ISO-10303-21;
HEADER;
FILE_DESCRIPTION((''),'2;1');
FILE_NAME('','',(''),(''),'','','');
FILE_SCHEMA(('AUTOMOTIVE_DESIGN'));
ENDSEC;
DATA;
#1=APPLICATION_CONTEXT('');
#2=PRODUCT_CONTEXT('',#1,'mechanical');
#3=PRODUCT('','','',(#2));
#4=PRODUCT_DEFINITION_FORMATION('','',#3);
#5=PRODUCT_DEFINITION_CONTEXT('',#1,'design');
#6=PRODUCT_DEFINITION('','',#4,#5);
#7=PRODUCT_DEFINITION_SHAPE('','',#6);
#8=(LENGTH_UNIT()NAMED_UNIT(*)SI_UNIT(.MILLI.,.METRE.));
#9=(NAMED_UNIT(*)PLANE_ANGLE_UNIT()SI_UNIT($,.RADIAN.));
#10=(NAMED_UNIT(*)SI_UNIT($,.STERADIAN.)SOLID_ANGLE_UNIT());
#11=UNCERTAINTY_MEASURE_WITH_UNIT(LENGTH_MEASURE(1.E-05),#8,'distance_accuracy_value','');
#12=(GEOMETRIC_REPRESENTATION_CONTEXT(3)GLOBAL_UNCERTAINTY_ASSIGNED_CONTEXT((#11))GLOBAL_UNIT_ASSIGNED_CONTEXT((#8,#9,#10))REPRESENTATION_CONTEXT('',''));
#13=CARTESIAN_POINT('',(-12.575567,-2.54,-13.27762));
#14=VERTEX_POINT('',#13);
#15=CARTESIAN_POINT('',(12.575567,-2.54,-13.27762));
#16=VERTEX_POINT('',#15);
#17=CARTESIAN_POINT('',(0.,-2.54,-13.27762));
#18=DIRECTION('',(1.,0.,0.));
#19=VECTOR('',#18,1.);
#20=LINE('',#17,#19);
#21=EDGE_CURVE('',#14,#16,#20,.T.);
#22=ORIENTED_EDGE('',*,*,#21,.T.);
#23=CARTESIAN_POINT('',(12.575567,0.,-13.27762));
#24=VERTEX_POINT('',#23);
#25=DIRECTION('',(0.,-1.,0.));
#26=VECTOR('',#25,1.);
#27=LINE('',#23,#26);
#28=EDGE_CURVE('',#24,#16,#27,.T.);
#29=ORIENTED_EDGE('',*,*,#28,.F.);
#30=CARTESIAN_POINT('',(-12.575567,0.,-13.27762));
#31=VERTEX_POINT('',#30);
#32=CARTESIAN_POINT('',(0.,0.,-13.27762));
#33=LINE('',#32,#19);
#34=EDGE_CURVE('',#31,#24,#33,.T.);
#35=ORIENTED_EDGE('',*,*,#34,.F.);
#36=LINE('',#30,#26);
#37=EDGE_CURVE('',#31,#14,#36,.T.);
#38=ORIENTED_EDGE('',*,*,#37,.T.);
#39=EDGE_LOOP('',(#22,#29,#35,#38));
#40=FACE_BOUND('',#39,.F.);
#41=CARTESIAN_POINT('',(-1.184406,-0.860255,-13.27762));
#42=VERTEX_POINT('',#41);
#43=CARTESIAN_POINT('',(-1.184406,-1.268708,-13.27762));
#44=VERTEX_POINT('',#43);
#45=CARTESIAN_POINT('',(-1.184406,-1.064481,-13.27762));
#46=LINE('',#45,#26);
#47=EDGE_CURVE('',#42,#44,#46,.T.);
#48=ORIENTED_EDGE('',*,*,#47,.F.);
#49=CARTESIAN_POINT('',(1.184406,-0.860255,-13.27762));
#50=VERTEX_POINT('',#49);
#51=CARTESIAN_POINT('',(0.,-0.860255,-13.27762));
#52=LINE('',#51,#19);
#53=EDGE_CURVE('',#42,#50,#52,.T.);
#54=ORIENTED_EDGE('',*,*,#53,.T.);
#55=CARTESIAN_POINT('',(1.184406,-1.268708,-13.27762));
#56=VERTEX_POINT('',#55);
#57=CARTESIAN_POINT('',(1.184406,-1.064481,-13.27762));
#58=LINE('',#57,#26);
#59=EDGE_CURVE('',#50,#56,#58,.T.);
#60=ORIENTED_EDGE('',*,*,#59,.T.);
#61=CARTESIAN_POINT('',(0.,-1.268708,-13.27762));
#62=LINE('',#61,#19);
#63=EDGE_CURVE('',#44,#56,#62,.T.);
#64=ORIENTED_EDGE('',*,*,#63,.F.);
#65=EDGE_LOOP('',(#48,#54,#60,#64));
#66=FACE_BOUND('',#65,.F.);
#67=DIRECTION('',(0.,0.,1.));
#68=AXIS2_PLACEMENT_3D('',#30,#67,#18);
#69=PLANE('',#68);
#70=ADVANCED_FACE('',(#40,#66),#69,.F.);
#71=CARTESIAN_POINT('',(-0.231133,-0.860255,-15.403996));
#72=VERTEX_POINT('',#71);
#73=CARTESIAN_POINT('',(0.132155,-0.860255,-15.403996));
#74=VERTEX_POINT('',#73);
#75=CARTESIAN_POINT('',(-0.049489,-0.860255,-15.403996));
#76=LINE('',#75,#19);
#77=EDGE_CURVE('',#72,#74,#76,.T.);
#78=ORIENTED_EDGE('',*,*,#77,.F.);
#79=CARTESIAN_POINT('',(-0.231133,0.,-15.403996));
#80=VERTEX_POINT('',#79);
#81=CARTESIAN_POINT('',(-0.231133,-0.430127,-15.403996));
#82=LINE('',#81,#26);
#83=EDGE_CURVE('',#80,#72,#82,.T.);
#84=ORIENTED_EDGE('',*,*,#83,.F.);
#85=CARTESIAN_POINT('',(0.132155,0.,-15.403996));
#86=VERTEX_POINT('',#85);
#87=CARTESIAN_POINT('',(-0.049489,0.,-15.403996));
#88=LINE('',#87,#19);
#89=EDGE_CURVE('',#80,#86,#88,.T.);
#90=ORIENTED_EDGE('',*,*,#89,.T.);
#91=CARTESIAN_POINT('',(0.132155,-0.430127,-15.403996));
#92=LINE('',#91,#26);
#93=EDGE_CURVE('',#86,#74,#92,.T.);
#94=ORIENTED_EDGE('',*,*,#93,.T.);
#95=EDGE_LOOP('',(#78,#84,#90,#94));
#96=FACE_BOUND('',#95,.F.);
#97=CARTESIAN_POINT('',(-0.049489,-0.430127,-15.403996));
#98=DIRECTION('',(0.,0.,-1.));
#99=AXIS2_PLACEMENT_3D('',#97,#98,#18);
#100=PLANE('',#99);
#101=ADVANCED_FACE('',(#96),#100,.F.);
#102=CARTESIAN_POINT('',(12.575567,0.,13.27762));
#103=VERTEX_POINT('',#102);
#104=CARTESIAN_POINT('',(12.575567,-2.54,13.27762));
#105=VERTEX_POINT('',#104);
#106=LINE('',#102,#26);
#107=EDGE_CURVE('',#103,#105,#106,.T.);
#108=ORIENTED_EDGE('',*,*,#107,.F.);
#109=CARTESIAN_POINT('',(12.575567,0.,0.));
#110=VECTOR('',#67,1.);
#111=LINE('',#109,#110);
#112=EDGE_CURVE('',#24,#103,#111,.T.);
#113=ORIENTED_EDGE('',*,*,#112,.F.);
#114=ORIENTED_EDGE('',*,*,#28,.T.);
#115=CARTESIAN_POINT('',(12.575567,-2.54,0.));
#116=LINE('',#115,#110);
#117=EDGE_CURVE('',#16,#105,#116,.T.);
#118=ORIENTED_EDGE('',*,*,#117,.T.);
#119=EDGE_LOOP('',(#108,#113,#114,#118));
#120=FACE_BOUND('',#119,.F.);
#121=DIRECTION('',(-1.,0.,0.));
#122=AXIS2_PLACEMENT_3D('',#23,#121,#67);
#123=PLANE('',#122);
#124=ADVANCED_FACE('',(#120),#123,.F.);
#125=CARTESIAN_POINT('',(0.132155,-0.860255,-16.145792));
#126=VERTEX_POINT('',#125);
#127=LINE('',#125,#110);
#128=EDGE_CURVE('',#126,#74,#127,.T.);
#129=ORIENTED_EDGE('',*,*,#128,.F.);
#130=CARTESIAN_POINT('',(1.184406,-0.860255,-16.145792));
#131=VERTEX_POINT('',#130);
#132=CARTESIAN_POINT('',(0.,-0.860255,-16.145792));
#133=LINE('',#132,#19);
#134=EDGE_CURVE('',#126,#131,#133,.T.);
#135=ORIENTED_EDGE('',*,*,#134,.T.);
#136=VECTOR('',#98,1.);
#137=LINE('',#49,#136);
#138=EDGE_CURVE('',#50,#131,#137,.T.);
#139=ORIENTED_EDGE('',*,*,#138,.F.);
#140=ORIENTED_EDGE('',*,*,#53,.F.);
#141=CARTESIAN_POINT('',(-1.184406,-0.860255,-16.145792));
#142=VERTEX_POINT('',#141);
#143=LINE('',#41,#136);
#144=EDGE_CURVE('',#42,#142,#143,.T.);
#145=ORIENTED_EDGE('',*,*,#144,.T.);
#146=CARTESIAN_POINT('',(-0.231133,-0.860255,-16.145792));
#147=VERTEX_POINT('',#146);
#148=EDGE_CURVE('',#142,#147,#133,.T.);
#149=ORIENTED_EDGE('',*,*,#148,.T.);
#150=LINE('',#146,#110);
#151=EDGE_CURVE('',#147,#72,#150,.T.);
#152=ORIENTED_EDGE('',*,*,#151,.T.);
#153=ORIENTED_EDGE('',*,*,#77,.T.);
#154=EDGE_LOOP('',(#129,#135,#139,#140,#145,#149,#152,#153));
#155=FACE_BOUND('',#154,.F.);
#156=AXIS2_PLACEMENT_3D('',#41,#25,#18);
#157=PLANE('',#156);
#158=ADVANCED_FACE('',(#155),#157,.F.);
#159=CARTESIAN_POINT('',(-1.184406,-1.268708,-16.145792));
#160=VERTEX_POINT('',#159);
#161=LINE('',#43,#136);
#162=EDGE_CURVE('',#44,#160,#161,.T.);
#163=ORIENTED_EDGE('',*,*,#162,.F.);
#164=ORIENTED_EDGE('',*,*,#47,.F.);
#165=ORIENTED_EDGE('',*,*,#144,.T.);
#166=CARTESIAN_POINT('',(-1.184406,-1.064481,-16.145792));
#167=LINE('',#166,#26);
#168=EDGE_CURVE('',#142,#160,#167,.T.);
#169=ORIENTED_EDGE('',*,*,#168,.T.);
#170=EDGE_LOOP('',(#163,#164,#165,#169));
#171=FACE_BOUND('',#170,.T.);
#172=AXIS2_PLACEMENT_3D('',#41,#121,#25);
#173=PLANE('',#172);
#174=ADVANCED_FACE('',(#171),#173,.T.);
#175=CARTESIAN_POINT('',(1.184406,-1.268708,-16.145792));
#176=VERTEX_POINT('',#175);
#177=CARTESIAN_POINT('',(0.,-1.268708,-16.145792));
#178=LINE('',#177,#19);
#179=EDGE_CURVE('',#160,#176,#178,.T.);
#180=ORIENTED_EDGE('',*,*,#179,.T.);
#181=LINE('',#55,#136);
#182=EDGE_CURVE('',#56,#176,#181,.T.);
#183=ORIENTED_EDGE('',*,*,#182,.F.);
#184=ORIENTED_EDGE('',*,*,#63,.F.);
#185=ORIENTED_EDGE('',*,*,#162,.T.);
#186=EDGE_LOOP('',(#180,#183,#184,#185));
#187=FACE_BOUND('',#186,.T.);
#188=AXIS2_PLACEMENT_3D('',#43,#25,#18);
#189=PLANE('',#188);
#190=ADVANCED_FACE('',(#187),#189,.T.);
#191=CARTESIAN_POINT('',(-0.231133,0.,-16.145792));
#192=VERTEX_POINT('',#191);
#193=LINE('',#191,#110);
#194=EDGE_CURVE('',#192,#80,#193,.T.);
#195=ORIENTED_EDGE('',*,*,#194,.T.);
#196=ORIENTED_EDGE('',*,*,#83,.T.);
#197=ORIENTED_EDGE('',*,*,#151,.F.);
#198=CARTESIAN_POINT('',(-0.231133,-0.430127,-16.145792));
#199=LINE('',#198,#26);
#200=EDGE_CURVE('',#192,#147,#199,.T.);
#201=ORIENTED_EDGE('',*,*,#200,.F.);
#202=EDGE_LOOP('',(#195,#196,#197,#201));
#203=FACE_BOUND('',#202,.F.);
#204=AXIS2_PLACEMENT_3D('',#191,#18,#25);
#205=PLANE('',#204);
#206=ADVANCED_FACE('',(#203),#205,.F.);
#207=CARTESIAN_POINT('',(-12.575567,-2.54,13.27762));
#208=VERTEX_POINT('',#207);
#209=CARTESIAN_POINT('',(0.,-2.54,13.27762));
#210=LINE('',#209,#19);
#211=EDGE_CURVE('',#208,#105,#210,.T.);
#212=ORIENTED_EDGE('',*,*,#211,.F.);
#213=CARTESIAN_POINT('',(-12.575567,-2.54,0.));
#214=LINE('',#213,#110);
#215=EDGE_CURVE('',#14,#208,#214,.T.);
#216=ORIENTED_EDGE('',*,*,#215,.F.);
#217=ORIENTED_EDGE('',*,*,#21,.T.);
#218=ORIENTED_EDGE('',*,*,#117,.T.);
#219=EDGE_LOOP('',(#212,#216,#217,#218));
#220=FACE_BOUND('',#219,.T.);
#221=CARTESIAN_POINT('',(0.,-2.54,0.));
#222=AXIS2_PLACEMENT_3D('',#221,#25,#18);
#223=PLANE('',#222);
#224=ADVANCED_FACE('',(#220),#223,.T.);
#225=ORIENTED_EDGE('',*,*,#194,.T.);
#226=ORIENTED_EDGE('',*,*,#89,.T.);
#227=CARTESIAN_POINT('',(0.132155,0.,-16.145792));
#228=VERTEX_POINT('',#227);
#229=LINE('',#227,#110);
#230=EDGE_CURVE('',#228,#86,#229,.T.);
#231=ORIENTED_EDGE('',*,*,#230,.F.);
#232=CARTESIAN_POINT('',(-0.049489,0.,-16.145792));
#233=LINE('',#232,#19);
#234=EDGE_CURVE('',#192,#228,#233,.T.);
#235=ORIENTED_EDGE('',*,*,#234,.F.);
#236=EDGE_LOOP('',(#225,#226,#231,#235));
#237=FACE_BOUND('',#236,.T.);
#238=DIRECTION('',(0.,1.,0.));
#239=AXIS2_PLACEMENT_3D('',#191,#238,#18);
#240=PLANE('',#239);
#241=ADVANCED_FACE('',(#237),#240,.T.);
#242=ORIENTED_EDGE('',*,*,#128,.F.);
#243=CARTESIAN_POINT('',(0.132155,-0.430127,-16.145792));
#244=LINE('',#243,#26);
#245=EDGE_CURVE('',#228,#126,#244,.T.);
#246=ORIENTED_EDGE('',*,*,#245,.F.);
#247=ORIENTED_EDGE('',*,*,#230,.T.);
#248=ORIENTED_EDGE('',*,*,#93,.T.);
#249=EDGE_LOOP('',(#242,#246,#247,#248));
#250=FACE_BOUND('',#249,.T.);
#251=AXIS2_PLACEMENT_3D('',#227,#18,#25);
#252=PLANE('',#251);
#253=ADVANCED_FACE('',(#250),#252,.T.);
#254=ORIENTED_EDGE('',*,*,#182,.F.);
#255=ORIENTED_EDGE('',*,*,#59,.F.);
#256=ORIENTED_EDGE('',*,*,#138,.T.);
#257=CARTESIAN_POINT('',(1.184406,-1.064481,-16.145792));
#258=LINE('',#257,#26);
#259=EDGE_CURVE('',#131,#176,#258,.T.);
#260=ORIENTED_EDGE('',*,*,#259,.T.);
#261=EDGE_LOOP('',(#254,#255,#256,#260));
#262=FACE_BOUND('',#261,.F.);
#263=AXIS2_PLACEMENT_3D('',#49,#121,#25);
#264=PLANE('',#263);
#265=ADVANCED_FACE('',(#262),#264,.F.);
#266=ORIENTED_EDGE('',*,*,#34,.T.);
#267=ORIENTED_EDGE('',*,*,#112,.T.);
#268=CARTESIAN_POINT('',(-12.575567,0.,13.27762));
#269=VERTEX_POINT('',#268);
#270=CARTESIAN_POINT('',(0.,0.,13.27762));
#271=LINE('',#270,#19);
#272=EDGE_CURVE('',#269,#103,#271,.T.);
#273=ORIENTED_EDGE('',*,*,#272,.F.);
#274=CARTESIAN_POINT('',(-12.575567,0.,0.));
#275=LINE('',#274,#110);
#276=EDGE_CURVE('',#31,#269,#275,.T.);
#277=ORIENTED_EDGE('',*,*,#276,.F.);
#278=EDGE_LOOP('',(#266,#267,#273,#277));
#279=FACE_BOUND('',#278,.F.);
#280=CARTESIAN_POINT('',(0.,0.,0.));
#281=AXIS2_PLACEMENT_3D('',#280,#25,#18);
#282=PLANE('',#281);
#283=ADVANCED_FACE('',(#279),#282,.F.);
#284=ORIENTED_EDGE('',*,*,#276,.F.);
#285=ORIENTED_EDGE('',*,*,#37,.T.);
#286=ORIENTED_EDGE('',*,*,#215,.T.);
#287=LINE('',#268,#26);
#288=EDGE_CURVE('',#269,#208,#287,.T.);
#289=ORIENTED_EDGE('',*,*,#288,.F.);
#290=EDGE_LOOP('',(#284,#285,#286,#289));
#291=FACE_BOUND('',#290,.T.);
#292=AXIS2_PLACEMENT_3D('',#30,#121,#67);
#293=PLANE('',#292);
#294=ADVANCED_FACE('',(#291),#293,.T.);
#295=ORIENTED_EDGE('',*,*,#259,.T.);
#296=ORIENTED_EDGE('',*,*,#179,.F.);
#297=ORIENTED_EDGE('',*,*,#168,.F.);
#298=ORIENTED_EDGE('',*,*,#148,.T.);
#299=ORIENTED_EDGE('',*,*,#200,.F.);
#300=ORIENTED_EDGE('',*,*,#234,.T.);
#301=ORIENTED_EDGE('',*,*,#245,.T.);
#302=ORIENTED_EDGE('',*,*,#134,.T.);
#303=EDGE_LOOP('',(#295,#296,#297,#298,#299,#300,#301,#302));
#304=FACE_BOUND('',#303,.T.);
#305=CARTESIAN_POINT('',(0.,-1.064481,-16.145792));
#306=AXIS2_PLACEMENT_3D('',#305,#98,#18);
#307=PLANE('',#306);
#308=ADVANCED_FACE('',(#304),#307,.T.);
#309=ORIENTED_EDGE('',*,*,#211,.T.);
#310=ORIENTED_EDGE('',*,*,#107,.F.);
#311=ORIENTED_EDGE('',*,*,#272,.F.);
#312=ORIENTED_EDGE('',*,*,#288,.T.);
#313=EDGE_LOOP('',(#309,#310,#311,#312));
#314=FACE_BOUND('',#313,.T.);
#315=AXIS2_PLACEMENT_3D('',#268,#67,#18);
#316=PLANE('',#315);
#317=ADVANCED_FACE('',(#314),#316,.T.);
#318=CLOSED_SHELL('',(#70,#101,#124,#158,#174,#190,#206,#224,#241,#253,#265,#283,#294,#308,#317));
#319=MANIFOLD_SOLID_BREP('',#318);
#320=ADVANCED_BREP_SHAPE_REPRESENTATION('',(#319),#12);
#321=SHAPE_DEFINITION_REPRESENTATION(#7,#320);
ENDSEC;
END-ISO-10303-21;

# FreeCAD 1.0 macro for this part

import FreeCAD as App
import Part
import Sketcher

V = App.Vector
Q = App.Units.Quantity

doc = App.newDocument("Part")
body = doc.addObject("PartDesign::Body", "Body")

sketch1 = body.newObject("Sketcher::SketchObject", "Sketch")
sketch1.AttachmentSupport = (doc.getObject("XZ_Plane"), [""])
sketch1.MapMode = "FlatFace"
sketch1.addGeometry([
    Part.LineSegment(V(-13, 13, 0), V(-13, -13, 0)),
    Part.LineSegment(V(-13, -13, 0), V(13, -13, 0)),
    Part.LineSegment(V(13, -13, 0), V(13, 13, 0)),
    Part.LineSegment(V(13, 13, 0), V(-13, 13, 0)),
], False)
sketch1.addConstraint([
    Sketcher.Constraint("Coincident", 0, 2, 1, 1),
    Sketcher.Constraint("Coincident", 1, 2, 2, 1),
    Sketcher.Constraint("Coincident", 2, 2, 3, 1),
    Sketcher.Constraint("Coincident", 3, 2, 0, 1),
    Sketcher.Constraint("Vertical", 0),
    Sketcher.Constraint("Horizontal", 1),
    Sketcher.Constraint("Vertical", 2),
    Sketcher.Constraint("Horizontal", 3),
    Sketcher.Constraint("Symmetric", 0, 2, 2, 2, -1, 1),
    Sketcher.Constraint("DistanceY", 0, 2, 0, 1, 26.55524),
    Sketcher.Constraint("DistanceX", 1, 1, 1, 2, 25.151134),
])
pad1 = body.newObject("PartDesign::Pad", "Pad")
pad1.Profile = sketch1
pad1.Length = Q("0.1 in")

sketch2 = body.newObject("Sketcher::SketchObject", "Sketch001")
sketch2.AttachmentSupport = (doc.getObject("XY_Plane"), [""])
sketch2.MapMode = "FlatFace"
sketch2.AttachmentOffset = App.Placement(V(0, 0, -13.27762), App.Rotation())
sketch2.addGeometry([
    Part.LineSegment(V(-1.18, -1.27, 0), V(-1.18, -0.86, 0)),
    Part.LineSegment(V(-1.18, -0.86, 0), V(1.18, -0.86, 0)),
    Part.LineSegment(V(1.18, -0.86, 0), V(1.18, -1.27, 0)),
    Part.LineSegment(V(1.18, -1.27, 0), V(-1.18, -1.27, 0)),
], False)
sketch2.addConstraint([
    Sketcher.Constraint("Coincident", 0, 2, 1, 1),
    Sketcher.Constraint("Coincident", 1, 2, 2, 1),
    Sketcher.Constraint("Coincident", 2, 2, 3, 1),
    Sketcher.Constraint("Coincident", 3, 2, 0, 1),
    Sketcher.Constraint("Vertical", 0),
    Sketcher.Constraint("Horizontal", 1),
    Sketcher.Constraint("Vertical", 2),
    Sketcher.Constraint("Horizontal", 3),
    Sketcher.Constraint("DistanceX", 1, 1, 1, 2, 2.368812),
    Sketcher.Constraint("DistanceY", 0, 1, 0, 2, 0.408453),
    Sketcher.Constraint("DistanceX", 0, 2, -1, 1, 1.184406),
    Sketcher.Constraint("DistanceY", 0, 2, -1, 1, 0.860255),
])
pad2 = body.newObject("PartDesign::Pad", "Pad001")
pad2.Profile = sketch2
pad2.Length = 2.868172
pad2.Reversed = True

sketch3 = body.newObject("Sketcher::SketchObject", "Sketch002")
sketch3.AttachmentSupport = (doc.getObject("XY_Plane"), [""])
sketch3.MapMode = "FlatFace"
sketch3.AttachmentOffset = App.Placement(V(0, 0, -16.145792), App.Rotation())
sketch3.addGeometry([
    Part.LineSegment(V(-0.23, -0.86, 0), V(-0.23, 0, 0)),
    Part.LineSegment(V(-0.23, 0, 0), V(0.13, 0, 0)),
    Part.LineSegment(V(0.13, 0, 0), V(0.13, -0.86, 0)),
    Part.LineSegment(V(0.13, -0.86, 0), V(-0.23, -0.86, 0)),
], False)
sketch3.addConstraint([
    Sketcher.Constraint("Coincident", 0, 2, 1, 1),
    Sketcher.Constraint("Coincident", 1, 2, 2, 1),
    Sketcher.Constraint("Coincident", 2, 2, 3, 1),
    Sketcher.Constraint("Coincident", 3, 2, 0, 1),
    Sketcher.Constraint("Vertical", 0),
    Sketcher.Constraint("Horizontal", 1),
    Sketcher.Constraint("Vertical", 2),
    Sketcher.Constraint("Horizontal", 3),
    Sketcher.Constraint("PointOnObject", 0, 2, -1),
    Sketcher.Constraint("DistanceX", 1, 1, 1, 2, 0.363288),
    Sketcher.Constraint("DistanceY", 0, 1, 0, 2, 0.860255),
    Sketcher.Constraint("DistanceX", 0, 2, -1, 1, 0.231133),
])
pad3 = body.newObject("PartDesign::Pad", "Pad002")
pad3.Profile = sketch3
pad3.Length = 0.741796

doc.recompute()
